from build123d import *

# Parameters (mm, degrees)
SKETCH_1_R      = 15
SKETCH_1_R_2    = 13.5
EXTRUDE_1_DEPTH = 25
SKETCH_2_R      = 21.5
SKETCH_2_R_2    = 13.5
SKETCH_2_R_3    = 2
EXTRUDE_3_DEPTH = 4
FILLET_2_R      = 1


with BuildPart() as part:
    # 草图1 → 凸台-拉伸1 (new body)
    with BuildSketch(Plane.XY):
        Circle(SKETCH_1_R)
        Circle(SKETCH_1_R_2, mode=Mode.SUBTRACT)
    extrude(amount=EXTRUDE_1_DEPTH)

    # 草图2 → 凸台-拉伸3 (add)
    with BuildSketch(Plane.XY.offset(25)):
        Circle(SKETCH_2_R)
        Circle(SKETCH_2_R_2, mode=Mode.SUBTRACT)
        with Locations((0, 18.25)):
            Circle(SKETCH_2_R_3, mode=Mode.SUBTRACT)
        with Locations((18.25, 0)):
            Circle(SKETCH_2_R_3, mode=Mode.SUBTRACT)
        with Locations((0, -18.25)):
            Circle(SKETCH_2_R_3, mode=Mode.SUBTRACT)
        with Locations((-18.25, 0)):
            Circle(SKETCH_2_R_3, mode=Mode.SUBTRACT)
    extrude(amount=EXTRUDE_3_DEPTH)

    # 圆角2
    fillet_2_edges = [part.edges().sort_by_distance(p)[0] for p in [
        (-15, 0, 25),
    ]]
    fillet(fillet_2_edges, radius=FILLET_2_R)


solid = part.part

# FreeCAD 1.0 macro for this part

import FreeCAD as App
import Part
import Sketcher

V = App.Vector
Q = App.Units.Quantity


def edges_at(feature, points):
    """Names of the edges that pass closest to the given points."""
    edges = feature.Shape.Edges
    near = lambda p: min(range(len(edges)), key=lambda i: edges[i].distToShape(Part.Vertex(*p))[0])
    return sorted({f"Edge{near(p) + 1}" for p in points})

doc = App.newDocument("Part")
body = doc.addObject("PartDesign::Body", "Body")

sketch1 = body.newObject("Sketcher::SketchObject", "Sketch")
sketch1.AttachmentSupport = (doc.getObject("XY_Plane"), [""])
sketch1.MapMode = "FlatFace"
sketch1.addGeometry(Part.Circle(V(0, 0, 0), V(0, 0, 1), 15), False)
sketch1.addGeometry(Part.Circle(V(0, 0, 0), V(0, 0, 1), 14), False)
sketch1.addConstraint(Sketcher.Constraint("Coincident", 0, 3, -1, 1))
sketch1.addConstraint(Sketcher.Constraint("Coincident", 1, 3, -1, 1))
sketch1.addConstraint(Sketcher.Constraint("Diameter", 0, Q("30 mm")))
sketch1.addConstraint(Sketcher.Constraint("Diameter", 1, Q("27 mm")))
pad1 = body.newObject("PartDesign::Pad", "Pad")
pad1.Profile = sketch1
pad1.Length = 25

sketch2 = body.newObject("Sketcher::SketchObject", "Sketch001")
sketch2.AttachmentSupport = (doc.getObject("XY_Plane"), [""])
sketch2.MapMode = "FlatFace"
sketch2.AttachmentOffset = App.Placement(V(0, 0, 25), App.Rotation())
sketch2.addGeometry(Part.Circle(V(0, 0, 0), V(0, 0, 1), 21.5), False)
sketch2.addGeometry(Part.Circle(V(0, -18.2, 0), V(0, 0, 1), 2), False)
sketch2.addGeometry(Part.Circle(V(-18.2, 0, 0), V(0, 0, 1), 2), False)
sketch2.addGeometry(Part.Circle(V(0, 0, 0), V(0, 0, 1), 13.5), False)
sketch2.addGeometry(Part.Circle(V(18.2, 0, 0), V(0, 0, 1), 2), False)
sketch2.addGeometry(Part.Circle(V(0, 18.2, 0), V(0, 0, 1), 2), False)
sketch2.addConstraint(Sketcher.Constraint("Coincident", 0, 3, -1, 1))
sketch2.addConstraint(Sketcher.Constraint("Coincident", 3, 3, -1, 1))
sketch2.addConstraint(Sketcher.Constraint("Equal", 1, 2))
sketch2.addConstraint(Sketcher.Constraint("Equal", 2, 4))
sketch2.addConstraint(Sketcher.Constraint("Equal", 4, 5))
sketch2.addConstraint(Sketcher.Constraint("Symmetric", 2, 3, 4, 3, -1, 1))
sketch2.addConstraint(Sketcher.Constraint("Symmetric", 1, 3, 5, 3, -1, 1))
sketch2.addConstraint(Sketcher.Constraint("PointOnObject", 1, 3, -2))
sketch2.addConstraint(Sketcher.Constraint("PointOnObject", 2, 3, -1))
sketch2.addConstraint(Sketcher.Constraint("Diameter", 0, Q("43 mm")))
sketch2.addConstraint(Sketcher.Constraint("Diameter", 1, Q("4 mm")))
sketch2.addConstraint(Sketcher.Constraint("Diameter", 3, Q("27 mm")))
sketch2.addConstraint(Sketcher.Constraint("DistanceX", 2, 3, 4, 3, Q("36.5 mm")))
sketch2.addConstraint(Sketcher.Constraint("DistanceY", 1, 3, 5, 3, Q("36.5 mm")))
pad2 = body.newObject("PartDesign::Pad", "Pad001")
pad2.Profile = sketch2
pad2.Length = 4
doc.recompute()

fillet = body.newObject("PartDesign::Fillet", "Fillet")
fillet.Base = (pad2, edges_at(pad2, [(-15, 0, 25)]))
fillet.Radius = 1

doc.recompute()
